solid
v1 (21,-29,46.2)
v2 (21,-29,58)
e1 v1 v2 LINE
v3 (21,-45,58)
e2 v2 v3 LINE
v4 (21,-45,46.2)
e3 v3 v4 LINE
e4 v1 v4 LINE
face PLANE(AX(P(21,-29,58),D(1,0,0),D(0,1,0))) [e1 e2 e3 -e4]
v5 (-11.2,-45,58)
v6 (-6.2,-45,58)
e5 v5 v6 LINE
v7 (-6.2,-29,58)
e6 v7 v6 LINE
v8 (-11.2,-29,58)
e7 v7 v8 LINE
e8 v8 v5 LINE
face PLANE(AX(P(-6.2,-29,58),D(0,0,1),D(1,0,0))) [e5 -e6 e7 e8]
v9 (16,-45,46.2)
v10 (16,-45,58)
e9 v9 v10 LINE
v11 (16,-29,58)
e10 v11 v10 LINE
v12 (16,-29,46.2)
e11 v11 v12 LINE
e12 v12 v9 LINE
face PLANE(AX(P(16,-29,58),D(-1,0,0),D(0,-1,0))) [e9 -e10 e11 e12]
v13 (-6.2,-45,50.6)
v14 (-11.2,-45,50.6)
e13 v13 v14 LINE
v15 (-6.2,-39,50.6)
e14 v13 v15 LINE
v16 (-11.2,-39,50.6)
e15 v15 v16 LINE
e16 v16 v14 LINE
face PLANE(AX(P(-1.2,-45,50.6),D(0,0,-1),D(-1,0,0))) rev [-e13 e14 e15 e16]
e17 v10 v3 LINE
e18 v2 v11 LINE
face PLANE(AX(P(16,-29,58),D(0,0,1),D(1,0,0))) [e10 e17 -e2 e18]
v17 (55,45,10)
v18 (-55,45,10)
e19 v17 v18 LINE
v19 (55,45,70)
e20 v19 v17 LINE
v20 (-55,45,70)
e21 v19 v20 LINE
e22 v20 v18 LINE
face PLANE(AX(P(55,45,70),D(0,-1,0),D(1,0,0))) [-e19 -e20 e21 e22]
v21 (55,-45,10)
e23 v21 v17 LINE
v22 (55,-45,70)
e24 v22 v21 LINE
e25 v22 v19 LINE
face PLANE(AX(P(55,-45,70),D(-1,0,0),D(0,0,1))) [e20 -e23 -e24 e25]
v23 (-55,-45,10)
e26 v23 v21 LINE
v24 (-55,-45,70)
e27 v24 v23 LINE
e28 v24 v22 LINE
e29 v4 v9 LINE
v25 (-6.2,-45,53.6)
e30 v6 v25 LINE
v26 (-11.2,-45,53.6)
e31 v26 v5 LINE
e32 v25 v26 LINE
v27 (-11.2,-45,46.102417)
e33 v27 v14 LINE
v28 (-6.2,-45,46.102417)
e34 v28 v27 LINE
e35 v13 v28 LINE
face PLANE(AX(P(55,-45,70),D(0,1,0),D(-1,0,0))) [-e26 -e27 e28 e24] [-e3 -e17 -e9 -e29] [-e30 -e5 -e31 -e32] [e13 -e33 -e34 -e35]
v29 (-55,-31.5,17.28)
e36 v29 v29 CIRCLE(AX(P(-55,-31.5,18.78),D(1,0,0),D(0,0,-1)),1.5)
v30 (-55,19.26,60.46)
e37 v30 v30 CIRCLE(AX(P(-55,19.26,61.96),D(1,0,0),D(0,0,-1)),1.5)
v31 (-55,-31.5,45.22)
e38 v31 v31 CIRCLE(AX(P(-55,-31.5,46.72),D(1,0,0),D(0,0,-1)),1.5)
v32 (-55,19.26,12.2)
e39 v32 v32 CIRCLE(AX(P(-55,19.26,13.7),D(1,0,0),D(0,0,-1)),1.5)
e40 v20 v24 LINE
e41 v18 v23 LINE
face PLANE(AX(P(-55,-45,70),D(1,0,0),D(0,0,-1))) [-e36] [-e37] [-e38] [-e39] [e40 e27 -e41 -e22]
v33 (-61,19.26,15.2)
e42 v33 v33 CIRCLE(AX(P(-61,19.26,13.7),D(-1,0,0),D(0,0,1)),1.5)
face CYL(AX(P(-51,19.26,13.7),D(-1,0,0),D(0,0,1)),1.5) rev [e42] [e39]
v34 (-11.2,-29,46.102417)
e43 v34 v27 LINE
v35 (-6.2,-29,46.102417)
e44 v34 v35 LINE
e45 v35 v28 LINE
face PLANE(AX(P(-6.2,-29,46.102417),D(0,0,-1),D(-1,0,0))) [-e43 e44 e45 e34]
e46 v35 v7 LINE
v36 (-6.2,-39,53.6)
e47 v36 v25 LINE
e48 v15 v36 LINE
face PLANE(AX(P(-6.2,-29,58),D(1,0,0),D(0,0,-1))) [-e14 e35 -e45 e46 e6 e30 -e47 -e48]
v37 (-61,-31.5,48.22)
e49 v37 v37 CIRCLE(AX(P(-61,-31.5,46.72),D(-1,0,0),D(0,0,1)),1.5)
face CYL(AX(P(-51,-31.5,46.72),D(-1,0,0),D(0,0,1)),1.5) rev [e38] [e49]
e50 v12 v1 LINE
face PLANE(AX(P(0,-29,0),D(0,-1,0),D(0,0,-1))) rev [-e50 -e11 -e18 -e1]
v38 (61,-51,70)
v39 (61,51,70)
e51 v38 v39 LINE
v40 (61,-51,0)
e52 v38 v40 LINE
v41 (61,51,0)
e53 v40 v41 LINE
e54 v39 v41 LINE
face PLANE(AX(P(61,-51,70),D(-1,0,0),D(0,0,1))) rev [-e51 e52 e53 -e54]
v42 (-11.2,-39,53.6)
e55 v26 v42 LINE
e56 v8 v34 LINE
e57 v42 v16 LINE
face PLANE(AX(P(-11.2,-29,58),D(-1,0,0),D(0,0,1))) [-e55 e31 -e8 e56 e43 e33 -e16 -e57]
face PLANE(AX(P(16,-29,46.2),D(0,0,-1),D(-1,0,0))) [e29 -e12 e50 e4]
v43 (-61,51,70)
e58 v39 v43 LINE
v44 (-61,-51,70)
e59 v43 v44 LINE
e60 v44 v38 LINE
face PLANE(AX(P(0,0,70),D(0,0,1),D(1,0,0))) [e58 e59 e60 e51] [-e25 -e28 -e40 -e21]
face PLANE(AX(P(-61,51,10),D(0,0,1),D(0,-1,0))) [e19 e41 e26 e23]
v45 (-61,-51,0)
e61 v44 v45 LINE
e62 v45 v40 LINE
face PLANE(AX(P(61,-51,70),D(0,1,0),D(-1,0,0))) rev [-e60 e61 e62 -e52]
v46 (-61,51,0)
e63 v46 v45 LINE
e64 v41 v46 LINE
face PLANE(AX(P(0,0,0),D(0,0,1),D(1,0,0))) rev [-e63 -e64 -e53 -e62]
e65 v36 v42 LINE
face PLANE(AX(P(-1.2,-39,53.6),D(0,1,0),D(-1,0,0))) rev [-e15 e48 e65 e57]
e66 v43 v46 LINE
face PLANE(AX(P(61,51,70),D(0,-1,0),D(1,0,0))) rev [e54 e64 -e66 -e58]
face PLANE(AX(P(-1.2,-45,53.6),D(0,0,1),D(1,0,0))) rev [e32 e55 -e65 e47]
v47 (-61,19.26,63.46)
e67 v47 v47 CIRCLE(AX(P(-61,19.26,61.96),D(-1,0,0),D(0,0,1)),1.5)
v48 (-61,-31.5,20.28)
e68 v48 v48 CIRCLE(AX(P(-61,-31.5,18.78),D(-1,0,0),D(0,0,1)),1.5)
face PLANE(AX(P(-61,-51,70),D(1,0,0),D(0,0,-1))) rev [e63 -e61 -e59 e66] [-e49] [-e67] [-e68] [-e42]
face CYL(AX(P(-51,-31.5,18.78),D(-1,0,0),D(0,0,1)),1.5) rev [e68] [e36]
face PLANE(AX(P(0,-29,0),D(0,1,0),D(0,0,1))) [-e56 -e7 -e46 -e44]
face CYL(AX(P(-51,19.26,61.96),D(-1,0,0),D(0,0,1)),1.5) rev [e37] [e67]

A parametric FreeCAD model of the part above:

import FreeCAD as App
import Part
import Sketcher
from FreeCAD import Vector


def add_polygon(sketch, points):
    """Adds a closed chain of lines whose ends are joined by coincident constraints."""
    first, n = sketch.GeometryCount, len(points)
    for a, b in zip(points, points[1:] + points[:1]):
        sketch.addGeometry(Part.LineSegment(App.Vector(*a, 0), App.Vector(*b, 0)), False)
    for i in range(n):
        sketch.addConstraint(Sketcher.Constraint("Coincident", first + i, 2, first + (i + 1) % n, 1))

doc = App.newDocument("Part")
params = doc.addObject("Spreadsheet::Sheet", "Params")
for row, (alias, value) in enumerate([
    ("sketch1_width", "122 mm"),
    ("sketch1_width2", "110 mm"),
    ("sketch1_height", "102 mm"),
    ("sketch1_height2", "90 mm"),
    ("pad1_length", "70 mm"),
    ("sketch2_width", "102 mm"),
    ("sketch2_height", "10 mm"),
    ("pad2_length", "122 mm"),
    ("sketch3_diameter", "3 mm"),
    ("pocket1_length", "10 mm"),
    ("sketch4_diameter", "3 mm"),
    ("pocket2_length", "10 mm"),
    ("sketch5_diameter", "3 mm"),
    ("pocket3_length", "10 mm"),
    ("sketch6_width", "5 mm"),
    ("sketch6_height", "11.8 mm"),
    ("pad3_length", "22 mm"),
    ("sketch7_diameter", "3 mm"),
    ("pocket4_length", "7 mm"),
    ("sketch8_diameter", "3 mm"),
    ("pocket5_length", "7 mm"),
    ("sketch9_width", "6 mm"),
    ("sketch9_height", "3 mm"),
    ("pocket6_length", "10 mm"),
], start=1):
    params.set(f"A{row}", alias)
    params.set(f"B{row}", "=" + value)
    params.setAlias(f"B{row}", alias)

body = doc.addObject("PartDesign::Body", "Body")

sketch1 = body.newObject("Sketcher::SketchObject", "Sketch")
sketch1.AttachmentSupport = (doc.getObject("XY_Plane"), [""])
sketch1.MapMode = "FlatFace"
add_polygon(sketch1, [(-61, 51), (-61, -51), (61, -51), (61, 51)])
add_polygon(sketch1, [(55, -45), (-55, -45), (-55, 45), (55, 45)])
sketch1.addConstraint([
    Sketcher.Constraint("Vertical", 0),
    Sketcher.Constraint("Horizontal", 1),
    Sketcher.Constraint("Vertical", 2),
    Sketcher.Constraint("Horizontal", 3),
    Sketcher.Constraint("Horizontal", 4),
    Sketcher.Constraint("Vertical", 5),
    Sketcher.Constraint("Horizontal", 6),
    Sketcher.Constraint("Vertical", 7),
    Sketcher.Constraint("Symmetric", 0, 2, 2, 2, -1, 1),
    Sketcher.Constraint("Symmetric", 4, 2, 6, 2, -1, 1),
    Sketcher.Constraint("DistanceX", 1, 1, 1, 2, 122.0),
    Sketcher.Constraint("DistanceX", 4, 2, 4, 1, 110.0),
    Sketcher.Constraint("DistanceY", 0, 2, 0, 1, 102.0),
    Sketcher.Constraint("DistanceY", 5, 1, 5, 2, 90.0),
])
sketch1.setExpression("Constraints[18]", "Params.sketch1_width")
sketch1.setExpression("Constraints[19]", "Params.sketch1_width2")
sketch1.setExpression("Constraints[20]", "Params.sketch1_height")
sketch1.setExpression("Constraints[21]", "Params.sketch1_height2")
pad1 = body.newObject("PartDesign::Pad", "Pad")
pad1.Profile = sketch1
pad1.setExpression("Length", "Params.pad1_length")

sketch2 = body.newObject("Sketcher::SketchObject", "Sketch001")
sketch2.AttachmentSupport = (doc.getObject("YZ_Plane"), [""])
sketch2.MapMode = "FlatFace"
sketch2.AttachmentOffset = App.Placement(Vector(0, 0, 61), App.Rotation())
add_polygon(sketch2, [(51, 10), (-51, 10), (-51, 0), (51, 0)])
sketch2.addConstraint([
    Sketcher.Constraint("Horizontal", 0),
    Sketcher.Constraint("Vertical", 1),
    Sketcher.Constraint("Horizontal", 2),
    Sketcher.Constraint("Vertical", 3),
    Sketcher.Constraint("Symmetric", 1, 2, 2, 2, -1, 1),
    Sketcher.Constraint("DistanceX", 0, 2, 0, 1, 102.0),
    Sketcher.Constraint("DistanceY", 1, 2, 1, 1, 10.0),
])
sketch2.setExpression("Constraints[9]", "Params.sketch2_width")
sketch2.setExpression("Constraints[10]", "Params.sketch2_height")
pad2 = body.newObject("PartDesign::Pad", "Pad001")
pad2.Profile = sketch2
pad2.setExpression("Length", "Params.pad2_length")
pad2.Reversed = True

sketch3 = body.newObject("Sketcher::SketchObject", "Sketch002")
sketch3.AttachmentSupport = (doc.getObject("YZ_Plane"), [""])
sketch3.MapMode = "FlatFace"
sketch3.AttachmentOffset = App.Placement(Vector(0, 0, -61), App.Rotation())
sketch3.addGeometry([
    Part.Circle(Vector(-31.5, 18.8, 0), Vector(0, 0, 1), 1.5),
    Part.Circle(Vector(-31.5, 46.7, 0), Vector(0, 0, 1), 1.5),
], False)
sketch3.addConstraint([
    Sketcher.Constraint("Equal", 0, 1),
    Sketcher.Constraint("Vertical", 0, 3, 1, 3),
    Sketcher.Constraint("Diameter", 0, 3.0),
    Sketcher.Constraint("DistanceX", 0, 3, -1, 1, 31.5),
    Sketcher.Constraint("DistanceY", -1, 1, 0, 3, 18.78),
    Sketcher.Constraint("DistanceY", -1, 1, 1, 3, 46.72),
])
sketch3.setExpression("Constraints[2]", "Params.sketch3_diameter")
pocket1 = body.newObject("PartDesign::Pocket", "Pocket")
pocket1.Profile = sketch3
pocket1.setExpression("Length", "Params.pocket1_length")
pocket1.Reversed = True

sketch4 = body.newObject("Sketcher::SketchObject", "Sketch003")
sketch4.AttachmentSupport = (doc.getObject("YZ_Plane"), [""])
sketch4.MapMode = "FlatFace"
sketch4.AttachmentOffset = App.Placement(Vector(0, 0, -61), App.Rotation())
sketch4.addGeometry(Part.Circle(Vector(19.3, 62, 0), Vector(0, 0, 1), 1.5), False)
sketch4.addConstraint([
    Sketcher.Constraint("Diameter", 0, 3.0),
    Sketcher.Constraint("DistanceX", -1, 1, 0, 3, 19.26),
    Sketcher.Constraint("DistanceY", -1, 1, 0, 3, 61.96),
])
sketch4.setExpression("Constraints[0]", "Params.sketch4_diameter")
pocket2 = body.newObject("PartDesign::Pocket", "Pocket001")
pocket2.Profile = sketch4
pocket2.setExpression("Length", "Params.pocket2_length")
pocket2.Reversed = True

sketch5 = body.newObject("Sketcher::SketchObject", "Sketch004")
sketch5.AttachmentSupport = (doc.getObject("YZ_Plane"), [""])
sketch5.MapMode = "FlatFace"
sketch5.AttachmentOffset = App.Placement(Vector(0, 0, -61), App.Rotation())
sketch5.addGeometry(Part.Circle(Vector(19.3, 13.7, 0), Vector(0, 0, 1), 1.5), False)
sketch5.addConstraint([
    Sketcher.Constraint("Diameter", 0, 3.0),
    Sketcher.Constraint("DistanceY", -1, 1, 0, 3, 13.7),
    Sketcher.Constraint("DistanceX", -1, 1, 0, 3, 19.26),
])
sketch5.setExpression("Constraints[0]", "Params.sketch5_diameter")
pocket3 = body.newObject("PartDesign::Pocket", "Pocket002")
pocket3.Profile = sketch5
pocket3.setExpression("Length", "Params.pocket3_length")
pocket3.Reversed = True

sketch6 = body.newObject("Sketcher::SketchObject", "Sketch005")
sketch6.AttachmentSupport = (doc.getObject("XZ_Plane"), [""])
sketch6.MapMode = "FlatFace"
sketch6.AttachmentOffset = App.Placement(Vector(0, 0, 51), App.Rotation())
add_polygon(sketch6, [(16, 58), (16, 46.2), (21, 46.2), (21, 58)])
add_polygon(sketch6, [(-11.2, 58), (-11.2, 46.1), (-6.2, 46.1), (-6.2, 58)])
sketch6.addConstraint([
    Sketcher.Constraint("Vertical", 0),
    Sketcher.Constraint("Horizontal", 1),
    Sketcher.Constraint("Vertical", 2),
    Sketcher.Constraint("Horizontal", 3),
    Sketcher.Constraint("Vertical", 4),
    Sketcher.Constraint("Horizontal", 5),
    Sketcher.Constraint("Vertical", 6),
    Sketcher.Constraint("Horizontal", 7),
    Sketcher.Constraint("Horizontal", 3, 2, 6, 2),
    Sketcher.Constraint("Equal", 3, 5),
    Sketcher.Constraint("DistanceX", 1, 1, 1, 2, 5.0),
    Sketcher.Constraint("DistanceY", 0, 2, 0, 1, 11.8),
    Sketcher.Constraint("DistanceX", -1, 1, 0, 2, 16.0),
    Sketcher.Constraint("DistanceY", -1, 1, 2, 2, 58.0),
    Sketcher.Constraint("DistanceX", 4, 2, -1, 1, 11.2),
    Sketcher.Constraint("DistanceY", 4, 2, 4, 1, 11.897583),
])
sketch6.setExpression("Constraints[18]", "Params.sketch6_width")
sketch6.setExpression("Constraints[19]", "Params.sketch6_height")
pad3 = body.newObject("PartDesign::Pad", "Pad002")
pad3.Profile = sketch6
pad3.setExpression("Length", "Params.pad3_length")
pad3.Reversed = True

sketch7 = body.newObject("Sketcher::SketchObject", "Sketch006")
sketch7.AttachmentSupport = (doc.getObject("XZ_Plane"), [""])
sketch7.MapMode = "FlatFace"
sketch7.AttachmentOffset = App.Placement(Vector(0, 0, 17), App.Rotation())
sketch7.addGeometry(Part.Circle(Vector(27.8, 52, 0), Vector(0, 0, 1), 1.5), False)
sketch7.addConstraint([
    Sketcher.Constraint("Diameter", 0, 3.0),
    Sketcher.Constraint("DistanceX", -1, 1, 0, 3, 27.783669),
    Sketcher.Constraint("DistanceY", -1, 1, 0, 3, 52.019097),
])
sketch7.setExpression("Constraints[0]", "Params.sketch7_diameter")
pocket4 = body.newObject("PartDesign::Pocket", "Pocket003")
pocket4.Profile = sketch7
pocket4.setExpression("Length", "Params.pocket4_length")
pocket4.Reversed = True

sketch8 = body.newObject("Sketcher::SketchObject", "Sketch007")
sketch8.AttachmentSupport = (doc.getObject("XZ_Plane"), [""])
sketch8.MapMode = "FlatFace"
sketch8.AttachmentOffset = App.Placement(Vector(0, 0, 17), App.Rotation())
sketch8.addGeometry(Part.Circle(Vector(2.7, 51.9, 0), Vector(0, 0, 1), 1.5), False)
sketch8.addConstraint([
    Sketcher.Constraint("Diameter", 0, 3.0),
    Sketcher.Constraint("DistanceY", -1, 1, 0, 3, 51.901428),
    Sketcher.Constraint("DistanceX", -1, 1, 0, 3, 2.714757),
])
sketch8.setExpression("Constraints[0]", "Params.sketch8_diameter")
pocket5 = body.newObject("PartDesign::Pocket", "Pocket004")
pocket5.Profile = sketch8
pocket5.setExpression("Length", "Params.pocket5_length")
pocket5.Reversed = True

sketch9 = body.newObject("Sketcher::SketchObject", "Sketch008")
sketch9.AttachmentSupport = (doc.getObject("YZ_Plane"), [""])
sketch9.MapMode = "FlatFace"
sketch9.AttachmentOffset = App.Placement(Vector(0, 0, -11.2), App.Rotation())
add_polygon(sketch9, [(-39, 50.6), (-45, 50.6), (-45, 53.6), (-39, 53.6)])
sketch9.addConstraint([
    Sketcher.Constraint("Horizontal", 0),
    Sketcher.Constraint("Vertical", 1),
    Sketcher.Constraint("Horizontal", 2),
    Sketcher.Constraint("Vertical", 3),
    Sketcher.Constraint("DistanceX", 0, 2, 0, 1, 6.0),
    Sketcher.Constraint("DistanceY", 1, 1, 1, 2, 3.0),
    Sketcher.Constraint("DistanceX", 0, 2, -1, 1, 45.0),
    Sketcher.Constraint("DistanceY", -1, 1, 0, 2, 50.6),
])
sketch9.setExpression("Constraints[8]", "Params.sketch9_width")
sketch9.setExpression("Constraints[9]", "Params.sketch9_height")
pocket6 = body.newObject("PartDesign::Pocket", "Pocket005")
pocket6.Profile = sketch9
pocket6.setExpression("Length", "Params.pocket6_length")
pocket6.Reversed = True

doc.recompute()
